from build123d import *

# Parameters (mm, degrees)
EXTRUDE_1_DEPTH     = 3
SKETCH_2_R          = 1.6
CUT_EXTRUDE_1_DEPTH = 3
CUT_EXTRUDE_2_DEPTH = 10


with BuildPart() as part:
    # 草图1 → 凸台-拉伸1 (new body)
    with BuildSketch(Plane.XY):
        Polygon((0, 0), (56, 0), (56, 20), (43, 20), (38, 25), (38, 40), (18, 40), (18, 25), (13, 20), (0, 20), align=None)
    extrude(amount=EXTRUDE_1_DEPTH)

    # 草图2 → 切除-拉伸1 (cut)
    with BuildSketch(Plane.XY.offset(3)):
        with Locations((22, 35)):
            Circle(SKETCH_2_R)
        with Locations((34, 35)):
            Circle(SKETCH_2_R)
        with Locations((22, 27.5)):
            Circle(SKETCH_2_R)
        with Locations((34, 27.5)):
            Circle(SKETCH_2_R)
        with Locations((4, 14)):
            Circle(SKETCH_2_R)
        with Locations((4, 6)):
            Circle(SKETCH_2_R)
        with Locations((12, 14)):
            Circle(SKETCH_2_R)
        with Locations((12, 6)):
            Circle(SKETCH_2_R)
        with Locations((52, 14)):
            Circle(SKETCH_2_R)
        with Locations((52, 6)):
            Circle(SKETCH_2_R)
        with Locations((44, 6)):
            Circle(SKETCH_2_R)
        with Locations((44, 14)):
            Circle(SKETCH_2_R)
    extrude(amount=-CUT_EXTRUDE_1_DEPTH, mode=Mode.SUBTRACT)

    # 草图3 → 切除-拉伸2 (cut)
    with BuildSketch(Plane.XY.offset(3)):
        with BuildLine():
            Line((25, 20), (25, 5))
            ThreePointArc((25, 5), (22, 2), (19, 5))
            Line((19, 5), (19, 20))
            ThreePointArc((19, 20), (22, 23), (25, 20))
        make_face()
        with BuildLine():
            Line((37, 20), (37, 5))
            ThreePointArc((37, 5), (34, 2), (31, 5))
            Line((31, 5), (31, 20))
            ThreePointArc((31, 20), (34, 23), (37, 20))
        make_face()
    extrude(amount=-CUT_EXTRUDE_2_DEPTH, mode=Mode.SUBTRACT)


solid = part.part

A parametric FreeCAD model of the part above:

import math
import FreeCAD as App
import Part
import Sketcher
from FreeCAD import Vector

doc = App.newDocument("Part")
body = doc.addObject("PartDesign::Body", "Body")

# Sketch on XY plane
sketch1 = doc.addObject("Sketcher::SketchObject", "Sketch")
body.addObject(sketch1)
sketch1.AttachmentSupport = (doc.XY_Plane, [""])
sketch1.MapMode = "FlatFace"
sketch1.addGeometry([
    Part.LineSegment(Vector(0, 0, 0), Vector(56, 0, 0)),  # 0
    Part.LineSegment(Vector(56, 0, 0), Vector(56, 20, 0)),  # 1
    Part.LineSegment(Vector(56, 20, 0), Vector(43, 20, 0)),  # 2
    Part.LineSegment(Vector(43, 20, 0), Vector(38, 25, 0)),  # 3
    Part.LineSegment(Vector(38, 25, 0), Vector(38, 40, 0)),  # 4
    Part.LineSegment(Vector(38, 40, 0), Vector(18, 40, 0)),  # 5
    Part.LineSegment(Vector(18, 40, 0), Vector(18, 25, 0)),  # 6
    Part.LineSegment(Vector(18, 25, 0), Vector(13, 20, 0)),  # 7
    Part.LineSegment(Vector(13, 20, 0), Vector(0, 20, 0)),  # 8
    Part.LineSegment(Vector(0, 20, 0), Vector(0, 0, 0)),  # 9
], False)
sketch1.addConstraint([
    Sketcher.Constraint("Coincident", 0, 2, 1, 1),
    Sketcher.Constraint("Coincident", 1, 2, 2, 1),
    Sketcher.Constraint("Coincident", 2, 2, 3, 1),
    Sketcher.Constraint("Coincident", 3, 2, 4, 1),
    Sketcher.Constraint("Coincident", 4, 2, 5, 1),
    Sketcher.Constraint("Coincident", 5, 2, 6, 1),
    Sketcher.Constraint("Coincident", 6, 2, 7, 1),
    Sketcher.Constraint("Coincident", 7, 2, 8, 1),
    Sketcher.Constraint("Coincident", 8, 2, 9, 1),
    Sketcher.Constraint("Coincident", 9, 2, 0, 1),
    Sketcher.Constraint("Horizontal", 0),
    Sketcher.Constraint("Vertical", 1),
    Sketcher.Constraint("Horizontal", 2),
    Sketcher.Constraint("Vertical", 4),
    Sketcher.Constraint("Horizontal", 5),
    Sketcher.Constraint("Vertical", 6),
    Sketcher.Constraint("Horizontal", 8),
    Sketcher.Constraint("Vertical", 9),
    Sketcher.Constraint("Coincident", 9, 2, -1, 1),
    Sketcher.Constraint("Perpendicular", 3, 7),
    Sketcher.Constraint("Horizontal", 3, 2, 6, 2),
    Sketcher.Constraint("Horizontal", 2, 2, 7, 2),
    Sketcher.Constraint("Equal", 2, 8),
    Sketcher.Constraint("Equal", 5, 1),
    Sketcher.Constraint("Equal", 3, 7),
    Sketcher.Constraint("DistanceX", 0, 1, 0, 2, 56.0),
    Sketcher.Constraint("DistanceX", 2, 2, 2, 1, 13.0),
    Sketcher.Constraint("DistanceX", 5, 2, 5, 1, 20.0),
    Sketcher.Constraint("DistanceY", 4, 1, 4, 2, 15.0),
])
pad1 = doc.addObject("PartDesign::Pad", "Pad")
body.addObject(pad1)
pad1.Profile = sketch1
pad1.Length = 3

# Sketch on XY plane
sketch2 = doc.addObject("Sketcher::SketchObject", "Sketch001")
body.addObject(sketch2)
sketch2.AttachmentSupport = (doc.XY_Plane, [""])
sketch2.MapMode = "FlatFace"
sketch2.AttachmentOffset = App.Placement(Vector(0, 0, 3), App.Rotation())
sketch2.addGeometry([
    Part.Circle(Vector(22, 35, 0), Vector(0, 0, 1), 1.6),  # 0
    Part.Circle(Vector(34, 35, 0), Vector(0, 0, 1), 1.6),  # 1
    Part.Circle(Vector(22, 27.5, 0), Vector(0, 0, 1), 1.6),  # 2
    Part.Circle(Vector(34, 27.5, 0), Vector(0, 0, 1), 1.6),  # 3
    Part.Circle(Vector(4, 14, 0), Vector(0, 0, 1), 1.6),  # 4
    Part.Circle(Vector(4, 6, 0), Vector(0, 0, 1), 1.6),  # 5
    Part.Circle(Vector(12, 14, 0), Vector(0, 0, 1), 1.6),  # 6
    Part.Circle(Vector(12, 6, 0), Vector(0, 0, 1), 1.6),  # 7
    Part.Circle(Vector(52, 14, 0), Vector(0, 0, 1), 1.6),  # 8
    Part.Circle(Vector(52, 6, 0), Vector(0, 0, 1), 1.6),  # 9
    Part.Circle(Vector(44, 6, 0), Vector(0, 0, 1), 1.6),  # 10
    Part.Circle(Vector(44, 14, 0), Vector(0, 0, 1), 1.6),  # 11
], False)
sketch2.addConstraint([
    Sketcher.Constraint("Equal", 0, 1),
    Sketcher.Constraint("Equal", 1, 2),
    Sketcher.Constraint("Equal", 2, 3),
    Sketcher.Constraint("Equal", 3, 4),
    Sketcher.Constraint("Equal", 4, 5),
    Sketcher.Constraint("Equal", 5, 6),
    Sketcher.Constraint("Equal", 6, 7),
    Sketcher.Constraint("Equal", 7, 8),
    Sketcher.Constraint("Equal", 8, 9),
    Sketcher.Constraint("Equal", 9, 10),
    Sketcher.Constraint("Equal", 10, 11),
    Sketcher.Constraint("Horizontal", 0, 3, 1, 3),
    Sketcher.Constraint("Horizontal", 2, 3, 3, 3),
    Sketcher.Constraint("Horizontal", 4, 3, 6, 3),
    Sketcher.Constraint("Horizontal", 5, 3, 7, 3),
    Sketcher.Constraint("Horizontal", 6, 3, 8, 3),
    Sketcher.Constraint("Horizontal", 7, 3, 9, 3),
    Sketcher.Constraint("Horizontal", 9, 3, 10, 3),
    Sketcher.Constraint("Horizontal", 8, 3, 11, 3),
    Sketcher.Constraint("Vertical", 0, 3, 2, 3),
    Sketcher.Constraint("Vertical", 1, 3, 3, 3),
    Sketcher.Constraint("Vertical", 4, 3, 5, 3),
    Sketcher.Constraint("Vertical", 6, 3, 7, 3),
    Sketcher.Constraint("Vertical", 8, 3, 9, 3),
    Sketcher.Constraint("Vertical", 10, 3, 11, 3),
    Sketcher.Constraint("Diameter", 0, 3.2),
    Sketcher.Constraint("DistanceX", -1, 1, 0, 3, 22.0),
    Sketcher.Constraint("DistanceY", -1, 1, 0, 3, 35.0),
    Sketcher.Constraint("DistanceX", -1, 1, 1, 3, 34.0),
    Sketcher.Constraint("DistanceX", -1, 1, 4, 3, 4.0),
    Sketcher.Constraint("DistanceY", -1, 1, 4, 3, 14.0),
    Sketcher.Constraint("DistanceY", -1, 1, 5, 3, 6.0),
    Sketcher.Constraint("DistanceX", -1, 1, 6, 3, 12.0),
    Sketcher.Constraint("DistanceX", -1, 1, 8, 3, 52.0),
    Sketcher.Constraint("DistanceX", -1, 1, 10, 3, 44.0),
    Sketcher.Constraint("DistanceY", -1, 1, 2, 3, 27.5),
])
pocket1 = doc.addObject("PartDesign::Pocket", "Pocket")
body.addObject(pocket1)
pocket1.Profile = sketch2
pocket1.Length = 3

# Sketch on XY plane
sketch3 = doc.addObject("Sketcher::SketchObject", "Sketch002")
body.addObject(sketch3)
sketch3.AttachmentSupport = (doc.XY_Plane, [""])
sketch3.MapMode = "FlatFace"
sketch3.AttachmentOffset = App.Placement(Vector(0, 0, 3), App.Rotation())
sketch3.addGeometry([
    Part.LineSegment(Vector(25, 5, 0), Vector(25, 20, 0)),  # 0
    Part.ArcOfCircle(Part.Circle(Vector(22, 20, 0), Vector(0, 0, 1), 3), math.radians(0), math.radians(180)),  # 1
    Part.LineSegment(Vector(19, 20, 0), Vector(19, 5, 0)),  # 2
    Part.ArcOfCircle(Part.Circle(Vector(22, 5, 0), Vector(0, 0, 1), 3), math.radians(180), math.radians(360)),  # 3
    Part.LineSegment(Vector(37, 5, 0), Vector(37, 20, 0)),  # 4
    Part.ArcOfCircle(Part.Circle(Vector(34, 20, 0), Vector(0, 0, 1), 3), math.radians(0), math.radians(180)),  # 5
    Part.LineSegment(Vector(31, 20, 0), Vector(31, 5, 0)),  # 6
    Part.ArcOfCircle(Part.Circle(Vector(34, 5, 0), Vector(0, 0, 1), 3), math.radians(180), math.radians(360)),  # 7
], False)
sketch3.addConstraint([
    Sketcher.Constraint("Tangent", 0, 2, 1, 1),
    Sketcher.Constraint("Tangent", 1, 2, 2, 1),
    Sketcher.Constraint("Tangent", 2, 2, 3, 1),
    Sketcher.Constraint("Tangent", 3, 2, 0, 1),
    Sketcher.Constraint("Tangent", 4, 2, 5, 1),
    Sketcher.Constraint("Tangent", 5, 2, 6, 1),
    Sketcher.Constraint("Tangent", 6, 2, 7, 1),
    Sketcher.Constraint("Tangent", 7, 2, 4, 1),
    Sketcher.Constraint("Vertical", 0),
    Sketcher.Constraint("Vertical", 2),
    Sketcher.Constraint("Vertical", 4),
    Sketcher.Constraint("Vertical", 6),
    Sketcher.Constraint("Equal", 3, 5),
    Sketcher.Constraint("Horizontal", 1, 3, 5, 3),
    Sketcher.Constraint("Horizontal", 3, 3, 7, 3),
    Sketcher.Constraint("Radius", 1, 3.0),
    Sketcher.Constraint("DistanceY", 0, 1, 0, 2, 15.0),
    Sketcher.Constraint("DistanceX", -1, 1, 1, 3, 22.0),
    Sketcher.Constraint("DistanceY", -1, 1, 1, 3, 20.0),
    Sketcher.Constraint("DistanceX", -1, 1, 5, 3, 34.0),
])
pocket2 = doc.addObject("PartDesign::Pocket", "Pocket001")
body.addObject(pocket2)
pocket2.Profile = sketch3
pocket2.Length = 10

doc.recompute()
